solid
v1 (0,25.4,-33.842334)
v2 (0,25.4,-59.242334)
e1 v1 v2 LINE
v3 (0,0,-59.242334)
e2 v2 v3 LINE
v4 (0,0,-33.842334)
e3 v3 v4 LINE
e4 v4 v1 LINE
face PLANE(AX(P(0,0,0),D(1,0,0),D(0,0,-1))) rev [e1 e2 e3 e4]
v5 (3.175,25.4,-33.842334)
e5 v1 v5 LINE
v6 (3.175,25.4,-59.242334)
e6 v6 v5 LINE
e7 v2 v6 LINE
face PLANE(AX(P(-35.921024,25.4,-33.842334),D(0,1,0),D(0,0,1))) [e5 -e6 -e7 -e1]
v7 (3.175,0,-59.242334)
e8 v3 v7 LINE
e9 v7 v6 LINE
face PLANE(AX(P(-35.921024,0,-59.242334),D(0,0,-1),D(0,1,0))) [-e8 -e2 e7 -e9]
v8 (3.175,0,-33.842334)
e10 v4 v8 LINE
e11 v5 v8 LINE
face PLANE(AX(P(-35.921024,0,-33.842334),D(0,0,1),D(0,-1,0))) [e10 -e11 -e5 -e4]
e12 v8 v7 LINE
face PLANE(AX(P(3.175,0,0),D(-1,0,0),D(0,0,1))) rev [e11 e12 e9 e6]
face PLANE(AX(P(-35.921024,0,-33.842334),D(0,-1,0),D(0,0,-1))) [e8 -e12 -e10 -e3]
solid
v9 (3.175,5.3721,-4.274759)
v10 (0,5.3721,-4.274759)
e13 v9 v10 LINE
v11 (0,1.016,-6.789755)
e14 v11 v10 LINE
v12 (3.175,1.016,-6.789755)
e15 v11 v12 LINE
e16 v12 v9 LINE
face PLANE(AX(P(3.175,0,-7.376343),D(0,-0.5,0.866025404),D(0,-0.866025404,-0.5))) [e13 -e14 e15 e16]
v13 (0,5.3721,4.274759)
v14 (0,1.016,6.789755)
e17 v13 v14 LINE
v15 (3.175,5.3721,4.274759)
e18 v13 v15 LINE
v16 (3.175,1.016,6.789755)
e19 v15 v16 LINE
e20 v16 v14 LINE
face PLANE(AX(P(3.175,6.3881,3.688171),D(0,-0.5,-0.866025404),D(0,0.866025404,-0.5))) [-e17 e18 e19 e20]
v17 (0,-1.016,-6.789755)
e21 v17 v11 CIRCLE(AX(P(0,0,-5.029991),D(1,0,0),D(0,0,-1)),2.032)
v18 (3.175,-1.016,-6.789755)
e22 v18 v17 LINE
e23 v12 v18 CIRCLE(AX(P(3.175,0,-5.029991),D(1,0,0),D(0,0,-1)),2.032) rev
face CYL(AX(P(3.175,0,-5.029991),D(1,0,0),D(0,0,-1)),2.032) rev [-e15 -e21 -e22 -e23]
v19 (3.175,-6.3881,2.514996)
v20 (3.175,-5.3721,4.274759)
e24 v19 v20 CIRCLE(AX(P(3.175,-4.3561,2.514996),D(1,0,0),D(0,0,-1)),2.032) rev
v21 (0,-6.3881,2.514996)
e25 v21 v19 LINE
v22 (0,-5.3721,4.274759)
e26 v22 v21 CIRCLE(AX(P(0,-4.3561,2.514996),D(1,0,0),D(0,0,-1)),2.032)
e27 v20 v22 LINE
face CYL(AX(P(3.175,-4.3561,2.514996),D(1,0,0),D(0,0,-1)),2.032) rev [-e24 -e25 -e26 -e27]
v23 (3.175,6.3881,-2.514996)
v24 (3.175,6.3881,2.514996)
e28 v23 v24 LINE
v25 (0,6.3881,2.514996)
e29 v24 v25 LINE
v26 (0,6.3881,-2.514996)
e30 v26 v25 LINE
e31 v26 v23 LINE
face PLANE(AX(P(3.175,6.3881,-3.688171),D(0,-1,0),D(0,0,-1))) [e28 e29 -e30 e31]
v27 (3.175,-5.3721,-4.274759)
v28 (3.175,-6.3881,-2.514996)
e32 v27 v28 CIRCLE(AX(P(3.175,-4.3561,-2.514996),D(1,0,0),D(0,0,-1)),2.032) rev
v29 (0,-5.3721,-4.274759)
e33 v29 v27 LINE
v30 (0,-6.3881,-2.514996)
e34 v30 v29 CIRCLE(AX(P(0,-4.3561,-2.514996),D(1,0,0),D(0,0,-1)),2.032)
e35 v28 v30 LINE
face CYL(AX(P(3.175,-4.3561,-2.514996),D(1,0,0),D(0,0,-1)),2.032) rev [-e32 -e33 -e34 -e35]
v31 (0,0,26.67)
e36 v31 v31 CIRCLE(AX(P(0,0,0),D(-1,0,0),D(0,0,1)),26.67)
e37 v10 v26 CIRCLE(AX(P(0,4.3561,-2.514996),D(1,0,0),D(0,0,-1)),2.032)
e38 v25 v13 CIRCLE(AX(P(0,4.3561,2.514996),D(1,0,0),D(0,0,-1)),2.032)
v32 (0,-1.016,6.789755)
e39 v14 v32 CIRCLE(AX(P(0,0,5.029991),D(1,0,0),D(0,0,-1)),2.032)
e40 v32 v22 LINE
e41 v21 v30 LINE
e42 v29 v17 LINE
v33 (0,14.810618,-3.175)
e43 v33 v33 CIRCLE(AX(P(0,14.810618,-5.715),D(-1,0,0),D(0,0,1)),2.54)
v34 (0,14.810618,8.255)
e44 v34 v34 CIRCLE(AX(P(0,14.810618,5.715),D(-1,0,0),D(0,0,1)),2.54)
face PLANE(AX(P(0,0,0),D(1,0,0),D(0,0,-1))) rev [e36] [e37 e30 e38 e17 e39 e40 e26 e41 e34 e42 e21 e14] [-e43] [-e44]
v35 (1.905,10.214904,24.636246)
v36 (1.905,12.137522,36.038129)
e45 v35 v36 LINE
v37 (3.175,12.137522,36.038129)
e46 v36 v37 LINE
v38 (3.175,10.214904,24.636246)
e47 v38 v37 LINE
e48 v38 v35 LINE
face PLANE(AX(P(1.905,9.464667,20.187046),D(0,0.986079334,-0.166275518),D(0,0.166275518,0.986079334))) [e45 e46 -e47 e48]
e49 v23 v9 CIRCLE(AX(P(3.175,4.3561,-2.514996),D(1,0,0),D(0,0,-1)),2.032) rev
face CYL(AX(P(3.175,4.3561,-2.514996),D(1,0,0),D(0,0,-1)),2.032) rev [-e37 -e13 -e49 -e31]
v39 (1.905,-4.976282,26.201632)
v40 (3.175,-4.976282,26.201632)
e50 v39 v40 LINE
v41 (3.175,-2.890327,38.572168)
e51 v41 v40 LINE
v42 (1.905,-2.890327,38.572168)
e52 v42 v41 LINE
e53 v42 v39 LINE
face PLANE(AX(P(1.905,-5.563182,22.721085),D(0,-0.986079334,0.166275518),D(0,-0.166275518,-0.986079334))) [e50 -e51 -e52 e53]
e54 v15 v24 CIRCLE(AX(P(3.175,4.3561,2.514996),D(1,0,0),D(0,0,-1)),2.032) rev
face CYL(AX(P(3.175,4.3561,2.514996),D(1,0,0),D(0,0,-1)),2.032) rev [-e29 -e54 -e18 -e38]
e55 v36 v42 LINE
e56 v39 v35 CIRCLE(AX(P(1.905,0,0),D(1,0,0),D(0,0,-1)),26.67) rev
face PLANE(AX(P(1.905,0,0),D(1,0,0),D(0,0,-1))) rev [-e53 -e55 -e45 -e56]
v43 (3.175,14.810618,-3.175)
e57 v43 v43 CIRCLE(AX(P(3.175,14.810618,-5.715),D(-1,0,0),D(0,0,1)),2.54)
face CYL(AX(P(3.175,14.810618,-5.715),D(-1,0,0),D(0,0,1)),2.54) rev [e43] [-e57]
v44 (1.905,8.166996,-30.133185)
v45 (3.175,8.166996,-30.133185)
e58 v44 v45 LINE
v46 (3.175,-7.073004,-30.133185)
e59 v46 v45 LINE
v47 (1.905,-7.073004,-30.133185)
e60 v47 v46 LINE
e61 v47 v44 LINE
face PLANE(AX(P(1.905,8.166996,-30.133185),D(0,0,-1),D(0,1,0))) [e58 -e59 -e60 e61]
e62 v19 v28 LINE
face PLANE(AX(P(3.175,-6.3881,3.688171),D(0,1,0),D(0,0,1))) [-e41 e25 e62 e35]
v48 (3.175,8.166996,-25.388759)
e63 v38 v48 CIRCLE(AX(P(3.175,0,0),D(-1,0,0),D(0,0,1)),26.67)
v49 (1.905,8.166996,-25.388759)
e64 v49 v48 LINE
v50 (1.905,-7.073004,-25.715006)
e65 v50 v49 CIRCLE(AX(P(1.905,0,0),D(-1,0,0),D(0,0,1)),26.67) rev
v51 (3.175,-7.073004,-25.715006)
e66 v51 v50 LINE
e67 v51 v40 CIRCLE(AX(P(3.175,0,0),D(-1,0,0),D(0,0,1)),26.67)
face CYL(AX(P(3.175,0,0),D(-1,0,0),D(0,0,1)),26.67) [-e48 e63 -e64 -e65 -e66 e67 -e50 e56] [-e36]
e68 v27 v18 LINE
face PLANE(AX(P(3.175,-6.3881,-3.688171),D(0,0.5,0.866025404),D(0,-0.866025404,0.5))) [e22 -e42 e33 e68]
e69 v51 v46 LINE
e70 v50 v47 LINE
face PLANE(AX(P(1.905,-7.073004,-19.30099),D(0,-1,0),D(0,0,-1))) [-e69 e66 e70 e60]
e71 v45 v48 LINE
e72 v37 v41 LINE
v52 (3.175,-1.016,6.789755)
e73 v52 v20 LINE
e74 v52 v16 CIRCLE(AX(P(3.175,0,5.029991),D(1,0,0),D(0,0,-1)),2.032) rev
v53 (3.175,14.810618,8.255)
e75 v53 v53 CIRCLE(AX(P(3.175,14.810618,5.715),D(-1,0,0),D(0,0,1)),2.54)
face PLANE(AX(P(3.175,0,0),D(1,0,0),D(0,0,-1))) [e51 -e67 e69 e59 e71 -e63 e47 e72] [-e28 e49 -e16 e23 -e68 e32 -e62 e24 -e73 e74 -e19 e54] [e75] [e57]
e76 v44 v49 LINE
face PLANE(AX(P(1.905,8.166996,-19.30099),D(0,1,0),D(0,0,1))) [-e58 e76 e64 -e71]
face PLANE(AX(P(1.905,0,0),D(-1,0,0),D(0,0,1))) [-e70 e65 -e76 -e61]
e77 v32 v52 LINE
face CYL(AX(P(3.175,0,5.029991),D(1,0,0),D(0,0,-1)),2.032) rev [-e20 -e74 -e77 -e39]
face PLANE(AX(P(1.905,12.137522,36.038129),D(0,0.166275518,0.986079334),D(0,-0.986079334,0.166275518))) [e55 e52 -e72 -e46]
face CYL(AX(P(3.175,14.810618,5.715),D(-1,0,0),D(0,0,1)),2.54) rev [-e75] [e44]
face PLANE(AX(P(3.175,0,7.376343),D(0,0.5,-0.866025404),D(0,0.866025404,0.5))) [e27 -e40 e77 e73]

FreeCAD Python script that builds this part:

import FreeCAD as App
import Part
import Sketcher
from FreeCAD import Vector
Q = App.Units.Quantity


def edges_at(feature, points):
    """Names of the edges that pass closest to the given points."""
    edges = feature.Shape.Edges
    near = lambda p: min(range(len(edges)), key=lambda i: edges[i].distToShape(Part.Vertex(*p))[0])
    return sorted({f"Edge{near(p) + 1}" for p in points})

doc = App.newDocument("Part")
body = doc.addObject("PartDesign::Body", "Body")

# Sketch on YZ plane
sketch1 = body.newObject("Sketcher::SketchObject", "Sketch")
sketch1.AttachmentSupport = (doc.getObject("YZ_Plane"), [""])
sketch1.MapMode = "FlatFace"
sketch1.addGeometry([
    Part.Circle(Vector(0, 0, 0), Vector(0, 0, 1), 29),  # 0
    Part.LineSegment(Vector(6, 4, 0), Vector(6, -4, 0)),  # 1
    Part.LineSegment(Vector(6, -4, 0), Vector(0, -7, 0)),  # 2
    Part.LineSegment(Vector(0, -7, 0), Vector(-6, -4, 0)),  # 3
    Part.LineSegment(Vector(-6, -4, 0), Vector(-6, 4, 0)),  # 4
    Part.LineSegment(Vector(-6, 4, 0), Vector(0, 7, 0)),  # 5
    Part.LineSegment(Vector(0, 7, 0), Vector(6, 4, 0)),  # 6
], False)
sketch1.addConstraint([
    Sketcher.Constraint("Coincident", 1, 2, 2, 1),
    Sketcher.Constraint("Coincident", 2, 2, 3, 1),
    Sketcher.Constraint("Coincident", 3, 2, 4, 1),
    Sketcher.Constraint("Coincident", 4, 2, 5, 1),
    Sketcher.Constraint("Coincident", 5, 2, 6, 1),
    Sketcher.Constraint("Coincident", 6, 2, 1, 1),
    Sketcher.Constraint("Vertical", 1),
    Sketcher.Constraint("Vertical", 4),
    Sketcher.Constraint("Coincident", 0, 3, -1, 1),
    Sketcher.Constraint("Symmetric", 1, 2, 4, 2, -1, 1),
    Sketcher.Constraint("Symmetric", 2, 2, 5, 2, -1, 1),
    Sketcher.Constraint("PointOnObject", 2, 2, -2),
    Sketcher.Constraint("Parallel", 3, 6),
    Sketcher.Constraint("Horizontal", 1, 2, 3, 2),
    Sketcher.Constraint("Diameter", 0, Q("2.3 in")),
    Sketcher.Constraint("Angle", 2, Q("-150 deg")),
    Sketcher.Constraint("DistanceX", 3, 2, 1, 2, Q("0.503 in")),
    Sketcher.Constraint("DistanceY", 1, 2, 1, 1, Q("7.376343 mm")),
])
pad1 = body.newObject("PartDesign::Pad", "Pad")
pad1.Profile = sketch1
pad1.Length = Q("0.125 in")
doc.recompute()

fillet = body.newObject("PartDesign::Fillet", "Fillet")
fillet.Base = (pad1, edges_at(pad1, [
    (1.587, 6.388, -3.688),
    (1.587, 6.388, 3.688),
    (1.587, 0, 7.376),
    (1.587, -6.388, 3.688),
    (1.587, -6.388, -3.688),
    (1.587, 0, -7.376),
]))
fillet.Radius = Q("0.08 in")

# Sketch on YZ plane
sketch2 = body.newObject("Sketcher::SketchObject", "Sketch001")
sketch2.AttachmentSupport = (doc.getObject("YZ_Plane"), [""])
sketch2.MapMode = "FlatFace"
sketch2.addGeometry([
    Part.Circle(Vector(14.8, -5.7, 0), Vector(0, 0, 1), 2.5),
    Part.Circle(Vector(14.8, 5.7, 0), Vector(0, 0, 1), 2.5),
], False)
sketch2.addConstraint([
    Sketcher.Constraint("Equal", 0, 1),
    Sketcher.Constraint("Symmetric", 0, 3, 1, 3, -1),
    Sketcher.Constraint("Diameter", 0, Q("0.2 in")),
    Sketcher.Constraint("DistanceY", 0, 3, 1, 3, Q("0.45 in")),
    Sketcher.Constraint("DistanceX", -1, 1, 0, 3, Q("14.810618 mm")),
])
pocket1 = body.newObject("PartDesign::Pocket", "Pocket")
pocket1.Profile = sketch2
pocket1.Type = "ThroughAll"
pocket1.Reversed = True

# Sketch on YZ plane
sketch3 = body.newObject("Sketcher::SketchObject", "Sketch002")
sketch3.AttachmentSupport = (doc.getObject("YZ_Plane"), [""])
sketch3.MapMode = "FlatFace"
sketch3.addGeometry([
    Part.LineSegment(Vector(38, -38, 0), Vector(-38, -38, 0)),  # 0
    Part.LineSegment(Vector(-38, -38, 0), Vector(-38, 38, 0)),  # 1
    Part.LineSegment(Vector(-38, 38, 0), Vector(38, 38, 0)),  # 2
    Part.LineSegment(Vector(38, 38, 0), Vector(38, -38, 0)),  # 3
    Part.Circle(Vector(0, 0, 0), Vector(0, 0, 1), 27),  # 4
], False)
sketch3.addConstraint([
    Sketcher.Constraint("Coincident", 0, 2, 1, 1),
    Sketcher.Constraint("Coincident", 1, 2, 2, 1),
    Sketcher.Constraint("Coincident", 2, 2, 3, 1),
    Sketcher.Constraint("Coincident", 3, 2, 0, 1),
    Sketcher.Constraint("Horizontal", 0),
    Sketcher.Constraint("Vertical", 1),
    Sketcher.Constraint("Horizontal", 2),
    Sketcher.Constraint("Vertical", 3),
    Sketcher.Constraint("Coincident", 4, 3, -1, 1),
    Sketcher.Constraint("Symmetric", 0, 2, 2, 2, -1, 1),
    Sketcher.Constraint("Equal", 2, 1),
    Sketcher.Constraint("Diameter", 4, Q("2.1 in")),
    Sketcher.Constraint("DistanceX", 0, 2, 0, 1, Q("76.956 mm")),
])
pocket2 = body.newObject("PartDesign::Pocket", "Pocket001")
pocket2.Profile = sketch3
pocket2.Type = "ThroughAll"
pocket2.Reversed = True

# Sketch on YZ plane
sketch4 = body.newObject("Sketcher::SketchObject", "Sketch003")
sketch4.AttachmentSupport = (doc.getObject("YZ_Plane"), [""])
sketch4.MapMode = "FlatFace"
sketch4.AttachmentOffset = App.Placement(Vector(0, 0, 0.125 * 25.4), App.Rotation())
sketch4.addGeometry([
    Part.LineSegment(Vector(-6, 23, 0), Vector(9, 20, 0)),  # 0
    Part.LineSegment(Vector(9, 20, 0), Vector(12, 36, 0)),  # 1
    Part.LineSegment(Vector(12, 36, 0), Vector(-3, 39, 0)),  # 2
    Part.LineSegment(Vector(-3, 39, 0), Vector(-6, 23, 0)),  # 3
    Part.LineSegment(Vector(8, -19, 0), Vector(-7, -19, 0)),  # 4
    Part.LineSegment(Vector(-7, -19, 0), Vector(-7, -30, 0)),  # 5
    Part.LineSegment(Vector(-7, -30, 0), Vector(8, -30, 0)),  # 6
    Part.LineSegment(Vector(8, -30, 0), Vector(8, -19, 0)),  # 7
], False)
sketch4.addConstraint([
    Sketcher.Constraint("Coincident", 0, 2, 1, 1),
    Sketcher.Constraint("Coincident", 1, 2, 2, 1),
    Sketcher.Constraint("Coincident", 2, 2, 3, 1),
    Sketcher.Constraint("Coincident", 3, 2, 0, 1),
    Sketcher.Constraint("Coincident", 4, 2, 5, 1),
    Sketcher.Constraint("Coincident", 5, 2, 6, 1),
    Sketcher.Constraint("Coincident", 6, 2, 7, 1),
    Sketcher.Constraint("Coincident", 7, 2, 4, 1),
    Sketcher.Constraint("Horizontal", 4),
    Sketcher.Constraint("Vertical", 5),
    Sketcher.Constraint("Horizontal", 6),
    Sketcher.Constraint("Vertical", 7),
    Sketcher.Constraint("Perpendicular", 0, 1),
    Sketcher.Constraint("Perpendicular", 1, 2),
    Sketcher.Constraint("Perpendicular", 2, 3),
    Sketcher.Constraint("DistanceX", 4, 2, 4, 1, Q("0.6 in")),
    Sketcher.Constraint("Distance", 0, Q("0.6 in")),
    Sketcher.Constraint("DistanceY", 5, 2, 5, 1, Q("10.832195 mm")),
    Sketcher.Constraint("DistanceY", -1, 1, 1, 2, Q("36.038129 mm")),
    Sketcher.Constraint("DistanceX", 3, 2, -1, 1, Q("5.563182 mm")),
    Sketcher.Constraint("DistanceY", 4, 2, -1, 1, Q("19.30099 mm")),
    Sketcher.Constraint("DistanceX", 2, 2, 1, 2, Q("15.027849 mm")),
    Sketcher.Constraint("DistanceY", 0, 2, 2, 2, Q("18.385122 mm")),
    Sketcher.Constraint("DistanceX", 4, 2, 3, 2, Q("1.509822 mm")),
])
pad2 = body.newObject("PartDesign::Pad", "Pad001")
pad2.Profile = sketch4
pad2.Length = Q("0.05 in")
pad2.Reversed = True
body2 = doc.addObject("PartDesign::Body", "Body001")

# Sketch on YZ plane
sketch5 = body2.newObject("Sketcher::SketchObject", "Sketch004")
sketch5.AttachmentSupport = (doc.getObject("YZ_Plane001"), [""])
sketch5.MapMode = "FlatFace"
sketch5.AttachmentOffset = App.Placement(Vector(0, 0, 0.125 * 25.4), App.Rotation())
sketch5.addGeometry([
    Part.LineSegment(Vector(25, -34, 0), Vector(0, -34, 0)),
    Part.LineSegment(Vector(0, -34, 0), Vector(0, -59, 0)),
    Part.LineSegment(Vector(0, -59, 0), Vector(25, -59, 0)),
    Part.LineSegment(Vector(25, -59, 0), Vector(25, -34, 0)),
], False)
sketch5.addConstraint([
    Sketcher.Constraint("Coincident", 0, 2, 1, 1),
    Sketcher.Constraint("Coincident", 1, 2, 2, 1),
    Sketcher.Constraint("Coincident", 2, 2, 3, 1),
    Sketcher.Constraint("Coincident", 3, 2, 0, 1),
    Sketcher.Constraint("Horizontal", 0),
    Sketcher.Constraint("Vertical", 1),
    Sketcher.Constraint("Horizontal", 2),
    Sketcher.Constraint("Vertical", 3),
    Sketcher.Constraint("PointOnObject", 0, 2, -2),
    Sketcher.Constraint("Equal", 2, 1),
    Sketcher.Constraint("DistanceX", 0, 2, 0, 1, Q("1 in")),
    Sketcher.Constraint("DistanceY", 0, 2, -1, 1, Q("33.842334 mm")),
])
pad3 = body2.newObject("PartDesign::Pad", "Pad002")
pad3.Profile = sketch5
pad3.Length = Q("0.125 in")
pad3.Reversed = True

doc.recompute()
